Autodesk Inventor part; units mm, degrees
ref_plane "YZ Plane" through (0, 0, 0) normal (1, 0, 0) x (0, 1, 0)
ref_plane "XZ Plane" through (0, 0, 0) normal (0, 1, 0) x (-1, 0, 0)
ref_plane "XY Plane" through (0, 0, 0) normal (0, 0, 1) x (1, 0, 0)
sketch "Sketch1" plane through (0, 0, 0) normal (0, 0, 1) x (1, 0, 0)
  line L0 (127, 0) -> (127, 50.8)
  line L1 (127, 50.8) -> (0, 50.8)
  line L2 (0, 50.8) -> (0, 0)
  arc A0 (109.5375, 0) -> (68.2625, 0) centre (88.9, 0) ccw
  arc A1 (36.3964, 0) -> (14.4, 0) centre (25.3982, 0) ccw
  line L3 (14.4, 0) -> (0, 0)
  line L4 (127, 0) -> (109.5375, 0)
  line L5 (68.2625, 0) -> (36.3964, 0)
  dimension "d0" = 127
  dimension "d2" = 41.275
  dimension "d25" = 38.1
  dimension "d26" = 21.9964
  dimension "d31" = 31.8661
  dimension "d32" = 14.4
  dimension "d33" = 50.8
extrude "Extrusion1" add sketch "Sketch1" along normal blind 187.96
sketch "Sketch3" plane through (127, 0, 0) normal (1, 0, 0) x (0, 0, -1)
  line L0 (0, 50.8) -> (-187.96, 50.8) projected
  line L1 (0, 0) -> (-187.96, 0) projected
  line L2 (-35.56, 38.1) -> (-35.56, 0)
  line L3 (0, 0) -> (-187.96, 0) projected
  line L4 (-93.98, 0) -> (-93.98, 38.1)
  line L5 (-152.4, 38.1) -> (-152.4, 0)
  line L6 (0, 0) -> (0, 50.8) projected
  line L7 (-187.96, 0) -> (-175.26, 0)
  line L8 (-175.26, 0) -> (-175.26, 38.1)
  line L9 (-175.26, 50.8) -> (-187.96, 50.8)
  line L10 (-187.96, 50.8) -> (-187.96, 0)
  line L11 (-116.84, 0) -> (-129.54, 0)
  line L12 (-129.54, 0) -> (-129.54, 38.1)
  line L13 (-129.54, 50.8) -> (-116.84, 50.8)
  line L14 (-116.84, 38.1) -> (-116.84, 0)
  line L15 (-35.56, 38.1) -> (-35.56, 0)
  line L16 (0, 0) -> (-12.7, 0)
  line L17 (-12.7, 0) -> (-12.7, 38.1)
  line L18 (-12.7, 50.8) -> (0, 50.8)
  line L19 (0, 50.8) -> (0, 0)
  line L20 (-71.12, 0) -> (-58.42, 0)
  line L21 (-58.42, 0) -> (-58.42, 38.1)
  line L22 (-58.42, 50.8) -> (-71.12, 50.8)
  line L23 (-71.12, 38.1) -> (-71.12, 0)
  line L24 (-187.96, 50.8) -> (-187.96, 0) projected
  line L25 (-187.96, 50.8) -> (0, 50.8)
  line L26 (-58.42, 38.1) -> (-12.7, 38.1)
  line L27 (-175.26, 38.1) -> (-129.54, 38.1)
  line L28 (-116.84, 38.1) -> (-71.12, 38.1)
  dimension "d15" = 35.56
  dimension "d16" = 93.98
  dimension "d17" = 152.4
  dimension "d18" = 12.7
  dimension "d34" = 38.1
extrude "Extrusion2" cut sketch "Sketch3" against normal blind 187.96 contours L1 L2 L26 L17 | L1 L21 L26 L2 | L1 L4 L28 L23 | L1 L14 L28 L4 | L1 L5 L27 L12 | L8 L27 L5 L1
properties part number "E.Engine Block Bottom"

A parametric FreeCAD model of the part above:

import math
import FreeCAD as App
import Part
import Sketcher
Q = App.Units.Quantity


def add_polygon(sketch, points):
    """Adds a closed chain of lines whose ends are joined by coincident constraints."""
    first, n = sketch.GeometryCount, len(points)
    for a, b in zip(points, points[1:] + points[:1]):
        sketch.addGeometry(Part.LineSegment(App.Vector(*a, 0), App.Vector(*b, 0)), False)
    for i in range(n):
        sketch.addConstraint(Sketcher.Constraint("Coincident", first + i, 2, first + (i + 1) % n, 1))

doc = App.newDocument("Part")
params = doc.addObject("Spreadsheet::Sheet", "Params")
for row, (alias, value) in enumerate([
    ("sketch1_width", "5 in"),
    ("sketch1_height", "2 in"),
    ("sketch1_radius", "0.433 in"),
    ("sketch1_radius2", "0.8125 in"),
    ("pad1_length", "7.4 in"),
    ("sketch2_width", "1.5 in"),
    ("sketch2_height", "1.8 in"),
    ("pocket1_length", "7.4 in"),
], start=1):
    params.set(f"A{row}", alias)
    params.set(f"B{row}", "=" + value)
    params.setAlias(f"B{row}", alias)

body = doc.addObject("PartDesign::Body", "Body")

# Sketch on XY plane
sketch1 = doc.addObject("Sketcher::SketchObject", "Sketch")
body.addObject(sketch1)
sketch1.AttachmentSupport = (doc.XY_Plane, [""])
sketch1.MapMode = "FlatFace"
sketch1.addGeometry(Part.LineSegment(App.Vector(110, 0, 0), App.Vector(127, 0, 0)), False)
sketch1.addGeometry(Part.LineSegment(App.Vector(127, 0, 0), App.Vector(127, 51, 0)), False)
sketch1.addGeometry(Part.LineSegment(App.Vector(127, 51, 0), App.Vector(0, 51, 0)), False)
sketch1.addGeometry(Part.LineSegment(App.Vector(0, 51, 0), App.Vector(0, 0, 0)), False)
sketch1.addGeometry(Part.LineSegment(App.Vector(0, 0, 0), App.Vector(14, 0, 0)), False)
sketch1.addGeometry(Part.ArcOfCircle(Part.Circle(App.Vector(25, 0, 0), App.Vector(0, 0, 1), 11), math.radians(0), math.radians(180)), False)
sketch1.addGeometry(Part.LineSegment(App.Vector(36, 0, 0), App.Vector(68, 0, 0)), False)
sketch1.addGeometry(Part.ArcOfCircle(Part.Circle(App.Vector(89, 0, 0), App.Vector(0, 0, 1), 21), math.radians(0), math.radians(180)), False)
sketch1.addConstraint(Sketcher.Constraint("Coincident", 0, 2, 1, 1))
sketch1.addConstraint(Sketcher.Constraint("Coincident", 1, 2, 2, 1))
sketch1.addConstraint(Sketcher.Constraint("Coincident", 2, 2, 3, 1))
sketch1.addConstraint(Sketcher.Constraint("Coincident", 3, 2, 4, 1))
sketch1.addConstraint(Sketcher.Constraint("Coincident", 4, 2, 5, 2))
sketch1.addConstraint(Sketcher.Constraint("Coincident", 5, 1, 6, 1))
sketch1.addConstraint(Sketcher.Constraint("Coincident", 6, 2, 7, 2))
sketch1.addConstraint(Sketcher.Constraint("Coincident", 7, 1, 0, 1))
sketch1.addConstraint(Sketcher.Constraint("Horizontal", 0))
sketch1.addConstraint(Sketcher.Constraint("Vertical", 1))
sketch1.addConstraint(Sketcher.Constraint("Horizontal", 2))
sketch1.addConstraint(Sketcher.Constraint("Vertical", 3))
sketch1.addConstraint(Sketcher.Constraint("Horizontal", 4))
sketch1.addConstraint(Sketcher.Constraint("Horizontal", 6))
sketch1.addConstraint(Sketcher.Constraint("Coincident", 3, 2, -1, 1))
sketch1.addConstraint(Sketcher.Constraint("PointOnObject", 5, 3, -1))
sketch1.addConstraint(Sketcher.Constraint("PointOnObject", 7, 3, -1))
sketch1.addConstraint(Sketcher.Constraint("PointOnObject", 0, 2, -1))
sketch1.addConstraint(Sketcher.Constraint("PointOnObject", 5, 1, -1))
sketch1.addConstraint(Sketcher.Constraint("DistanceX", 2, 2, 2, 1, Q("5 in")))
sketch1.addConstraint(Sketcher.Constraint("DistanceY", 1, 1, 1, 2, Q("2 in")))
sketch1.addConstraint(Sketcher.Constraint("Radius", 5, Q("0.433 in")))
sketch1.addConstraint(Sketcher.Constraint("Radius", 7, Q("0.8125 in")))
sketch1.addConstraint(Sketcher.Constraint("DistanceX", 7, 3, 0, 2, Q("1.5 in")))
sketch1.addConstraint(Sketcher.Constraint("DistanceX", 4, 1, 4, 2, 14.4))
sketch1.setExpression("Constraints[19]", "Params.sketch1_width")
sketch1.setExpression("Constraints[20]", "Params.sketch1_height")
sketch1.setExpression("Constraints[21]", "Params.sketch1_radius")
sketch1.setExpression("Constraints[22]", "Params.sketch1_radius2")
pad1 = doc.addObject("PartDesign::Pad", "Pad")
body.addObject(pad1)
pad1.Profile = sketch1
pad1.setExpression("Length", "Params.pad1_length")

# Sketch on YZ plane
sketch2 = doc.addObject("Sketcher::SketchObject", "Sketch001")
body.addObject(sketch2)
sketch2.AttachmentSupport = (doc.YZ_Plane, [""])
sketch2.MapMode = "FlatFace"
sketch2.AttachmentOffset = App.Placement(App.Vector(0, 0, 5 * 25.4), App.Rotation())
add_polygon(sketch2, [(0, 13), (38, 13), (38, 58), (0, 58)])  # lines 0-3
add_polygon(sketch2, [(0, 71), (38, 71), (38, 117), (0, 117)])  # lines 4-7
add_polygon(sketch2, [(0, 130), (38, 130), (38, 175), (0, 175)])  # lines 8-11
sketch2.addConstraint(Sketcher.Constraint("Horizontal", 0))
sketch2.addConstraint(Sketcher.Constraint("Vertical", 1))
sketch2.addConstraint(Sketcher.Constraint("Horizontal", 2))
sketch2.addConstraint(Sketcher.Constraint("Vertical", 3))
sketch2.addConstraint(Sketcher.Constraint("Horizontal", 4))
sketch2.addConstraint(Sketcher.Constraint("Vertical", 5))
sketch2.addConstraint(Sketcher.Constraint("Horizontal", 6))
sketch2.addConstraint(Sketcher.Constraint("Vertical", 7))
sketch2.addConstraint(Sketcher.Constraint("Horizontal", 8))
sketch2.addConstraint(Sketcher.Constraint("Vertical", 9))
sketch2.addConstraint(Sketcher.Constraint("Horizontal", 10))
sketch2.addConstraint(Sketcher.Constraint("Vertical", 11))
sketch2.addConstraint(Sketcher.Constraint("PointOnObject", 2, 2, -2))
sketch2.addConstraint(Sketcher.Constraint("PointOnObject", 6, 2, -2))
sketch2.addConstraint(Sketcher.Constraint("PointOnObject", 10, 2, -2))
sketch2.addConstraint(Sketcher.Constraint("Vertical", 1, 2, 4, 2))
sketch2.addConstraint(Sketcher.Constraint("Vertical", 5, 2, 8, 2))
sketch2.addConstraint(Sketcher.Constraint("Equal", 3, 5))
sketch2.addConstraint(Sketcher.Constraint("Equal", 7, 9))
sketch2.addConstraint(Sketcher.Constraint("DistanceX", 0, 1, 0, 2, Q("1.5 in")))
sketch2.addConstraint(Sketcher.Constraint("DistanceY", -1, 1, 0, 2, Q("0.5 in")))
sketch2.addConstraint(Sketcher.Constraint("DistanceY", 1, 2, 4, 2, Q("0.5 in")))
sketch2.addConstraint(Sketcher.Constraint("DistanceY", 5, 2, 8, 2, Q("0.5 in")))
sketch2.addConstraint(Sketcher.Constraint("DistanceY", 1, 1, 1, 2, Q("1.8 in")))
sketch2.setExpression("Constraints[31]", "Params.sketch2_width")
sketch2.setExpression("Constraints[35]", "Params.sketch2_height")
pocket1 = doc.addObject("PartDesign::Pocket", "Pocket")
body.addObject(pocket1)
pocket1.Profile = sketch2
pocket1.setExpression("Length", "Params.pocket1_length")

doc.recompute()
